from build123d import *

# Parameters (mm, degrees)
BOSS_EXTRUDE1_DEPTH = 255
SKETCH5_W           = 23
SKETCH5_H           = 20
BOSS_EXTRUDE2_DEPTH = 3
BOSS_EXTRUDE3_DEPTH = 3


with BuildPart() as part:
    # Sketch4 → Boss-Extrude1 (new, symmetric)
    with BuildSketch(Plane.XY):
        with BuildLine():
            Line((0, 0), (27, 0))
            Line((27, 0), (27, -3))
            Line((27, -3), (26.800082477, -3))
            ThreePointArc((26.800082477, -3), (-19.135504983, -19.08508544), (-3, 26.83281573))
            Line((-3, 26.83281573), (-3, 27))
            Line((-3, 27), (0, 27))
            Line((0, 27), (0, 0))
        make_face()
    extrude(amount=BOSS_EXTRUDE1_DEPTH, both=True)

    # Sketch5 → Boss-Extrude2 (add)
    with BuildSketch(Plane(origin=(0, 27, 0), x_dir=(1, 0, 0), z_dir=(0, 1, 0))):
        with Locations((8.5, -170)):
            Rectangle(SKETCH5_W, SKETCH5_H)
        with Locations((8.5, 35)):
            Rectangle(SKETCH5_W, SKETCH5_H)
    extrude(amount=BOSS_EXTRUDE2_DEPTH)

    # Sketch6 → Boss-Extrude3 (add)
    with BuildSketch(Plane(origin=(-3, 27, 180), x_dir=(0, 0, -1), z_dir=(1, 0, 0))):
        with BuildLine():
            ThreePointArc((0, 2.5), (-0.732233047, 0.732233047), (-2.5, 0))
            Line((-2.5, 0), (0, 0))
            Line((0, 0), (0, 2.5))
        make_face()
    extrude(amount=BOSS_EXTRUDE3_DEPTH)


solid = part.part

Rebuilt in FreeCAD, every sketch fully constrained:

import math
import FreeCAD as App
import Part
import Sketcher
Q = App.Units.Quantity


def add_polygon(sketch, points):
    """Adds a closed chain of lines whose ends are joined by coincident constraints."""
    first, n = sketch.GeometryCount, len(points)
    for a, b in zip(points, points[1:] + points[:1]):
        sketch.addGeometry(Part.LineSegment(App.Vector(*a, 0), App.Vector(*b, 0)), False)
    for i in range(n):
        sketch.addConstraint(Sketcher.Constraint("Coincident", first + i, 2, first + (i + 1) % n, 1))

doc = App.newDocument("Part")
body = doc.addObject("PartDesign::Body", "Body")

# Sketch on XY plane
sketch1 = body.newObject("Sketcher::SketchObject", "Sketch")
sketch1.AttachmentSupport = (doc.getObject("XY_Plane"), [""])
sketch1.MapMode = "FlatFace"
sketch1.addGeometry([
    Part.LineSegment(App.Vector(27, 0, 0), App.Vector(0, 0, 0)),  # 0
    Part.LineSegment(App.Vector(0, 0, 0), App.Vector(0, 27, 0)),  # 1
    Part.LineSegment(App.Vector(0, 27, 0), App.Vector(-3, 27, 0)),  # 2
    Part.LineSegment(App.Vector(-3, 27, 0), App.Vector(-3, 26.83, 0)),  # 3
    Part.ArcOfCircle(Part.Circle(App.Vector(-0.03, 0, 0), App.Vector(0, 0, 1), 27), math.radians(96), math.radians(354)),  # 4
    Part.LineSegment(App.Vector(26.8, -3, 0), App.Vector(27, -3, 0)),  # 5
    Part.LineSegment(App.Vector(27, -3, 0), App.Vector(27, 0, 0)),  # 6
], False)
sketch1.addConstraint([
    Sketcher.Constraint("Coincident", 0, 2, 1, 1),
    Sketcher.Constraint("Coincident", 1, 2, 2, 1),
    Sketcher.Constraint("Coincident", 2, 2, 3, 1),
    Sketcher.Constraint("Coincident", 3, 2, 4, 1),
    Sketcher.Constraint("Coincident", 4, 2, 5, 1),
    Sketcher.Constraint("Coincident", 5, 2, 6, 1),
    Sketcher.Constraint("Coincident", 6, 2, 0, 1),
    Sketcher.Constraint("Horizontal", 0),
    Sketcher.Constraint("Vertical", 1),
    Sketcher.Constraint("Horizontal", 2),
    Sketcher.Constraint("Vertical", 3),
    Sketcher.Constraint("Horizontal", 5),
    Sketcher.Constraint("Vertical", 6),
    Sketcher.Constraint("Coincident", 0, 2, -1, 1),
    Sketcher.Constraint("Equal", 0, 1),
    Sketcher.Constraint("Equal", 2, 6),
    Sketcher.Constraint("Radius", 4, Q("27 mm")),
    Sketcher.Constraint("DistanceX", 0, 2, 0, 1, Q("27 mm")),
    Sketcher.Constraint("DistanceX", 2, 2, 2, 1, Q("3 mm")),
    Sketcher.Constraint("DistanceY", 4, 3, 3, 2, Q("26.836501 mm")),
    Sketcher.Constraint("DistanceX", 5, 1, 5, 2, Q("0.199918 mm")),
])
pad1 = body.newObject("PartDesign::Pad", "Pad")
pad1.Profile = sketch1
pad1.Length = 510
pad1.Midplane = True

# Sketch on XZ plane
sketch2 = body.newObject("Sketcher::SketchObject", "Sketch001")
sketch2.AttachmentSupport = (doc.getObject("XZ_Plane"), [""])
sketch2.MapMode = "FlatFace"
sketch2.AttachmentOffset = App.Placement(App.Vector(0, 0, -27), App.Rotation())
add_polygon(sketch2, [(-3, 160), (-3, 180), (20, 180), (20, 160)])  # lines 0-3
add_polygon(sketch2, [(-3, -45), (-3, -25), (20, -25), (20, -45)])  # lines 4-7
sketch2.addConstraint([
    Sketcher.Constraint("Vertical", 0),
    Sketcher.Constraint("Horizontal", 1),
    Sketcher.Constraint("Vertical", 2),
    Sketcher.Constraint("Horizontal", 3),
    Sketcher.Constraint("Vertical", 4),
    Sketcher.Constraint("Horizontal", 5),
    Sketcher.Constraint("Vertical", 6),
    Sketcher.Constraint("Horizontal", 7),
    Sketcher.Constraint("Vertical", 3, 2, 4, 2),
    Sketcher.Constraint("Vertical", 2, 2, 5, 2),
    Sketcher.Constraint("Equal", 2, 4),
    Sketcher.Constraint("DistanceX", 1, 1, 1, 2, Q("23 mm")),
    Sketcher.Constraint("DistanceY", 0, 1, 0, 2, Q("20 mm")),
    Sketcher.Constraint("DistanceX", 0, 2, -1, 1, Q("3 mm")),
    Sketcher.Constraint("DistanceY", -1, 1, 0, 2, Q("180 mm")),
    Sketcher.Constraint("DistanceY", 4, 2, -1, 1, Q("25 mm")),
])
pad2 = body.newObject("PartDesign::Pad", "Pad001")
pad2.Profile = sketch2
pad2.Length = 3
pad2.Reversed = True

# Sketch on YZ plane
sketch3 = body.newObject("Sketcher::SketchObject", "Sketch002")
sketch3.AttachmentSupport = (doc.getObject("YZ_Plane"), [""])
sketch3.MapMode = "FlatFace"
sketch3.AttachmentOffset = App.Placement(App.Vector(0, 0, -3), App.Rotation())
sketch3.addGeometry([
    Part.ArcOfCircle(Part.Circle(App.Vector(29.5, 182.5, 0), App.Vector(0, 0, 1), 2.5), math.radians(180), math.radians(270)),
    Part.LineSegment(App.Vector(27, 182.5, 0), App.Vector(27, 180, 0)),
    Part.LineSegment(App.Vector(27, 180, 0), App.Vector(29.5, 180, 0)),
], False)
sketch3.addConstraint([
    Sketcher.Constraint("Tangent", 0, 1, 1, 1),
    Sketcher.Constraint("Coincident", 1, 2, 2, 1),
    Sketcher.Constraint("Tangent", 2, 2, 0, 2),
    Sketcher.Constraint("Vertical", 1),
    Sketcher.Constraint("Horizontal", 2),
    Sketcher.Constraint("Radius", 0, Q("2.5 mm")),
    Sketcher.Constraint("DistanceX", -1, 1, 0, 1, Q("27 mm")),
    Sketcher.Constraint("DistanceY", -1, 1, 1, 2, Q("180 mm")),
])
pad3 = body.newObject("PartDesign::Pad", "Pad002")
pad3.Profile = sketch3
pad3.Length = 3

doc.recompute()
